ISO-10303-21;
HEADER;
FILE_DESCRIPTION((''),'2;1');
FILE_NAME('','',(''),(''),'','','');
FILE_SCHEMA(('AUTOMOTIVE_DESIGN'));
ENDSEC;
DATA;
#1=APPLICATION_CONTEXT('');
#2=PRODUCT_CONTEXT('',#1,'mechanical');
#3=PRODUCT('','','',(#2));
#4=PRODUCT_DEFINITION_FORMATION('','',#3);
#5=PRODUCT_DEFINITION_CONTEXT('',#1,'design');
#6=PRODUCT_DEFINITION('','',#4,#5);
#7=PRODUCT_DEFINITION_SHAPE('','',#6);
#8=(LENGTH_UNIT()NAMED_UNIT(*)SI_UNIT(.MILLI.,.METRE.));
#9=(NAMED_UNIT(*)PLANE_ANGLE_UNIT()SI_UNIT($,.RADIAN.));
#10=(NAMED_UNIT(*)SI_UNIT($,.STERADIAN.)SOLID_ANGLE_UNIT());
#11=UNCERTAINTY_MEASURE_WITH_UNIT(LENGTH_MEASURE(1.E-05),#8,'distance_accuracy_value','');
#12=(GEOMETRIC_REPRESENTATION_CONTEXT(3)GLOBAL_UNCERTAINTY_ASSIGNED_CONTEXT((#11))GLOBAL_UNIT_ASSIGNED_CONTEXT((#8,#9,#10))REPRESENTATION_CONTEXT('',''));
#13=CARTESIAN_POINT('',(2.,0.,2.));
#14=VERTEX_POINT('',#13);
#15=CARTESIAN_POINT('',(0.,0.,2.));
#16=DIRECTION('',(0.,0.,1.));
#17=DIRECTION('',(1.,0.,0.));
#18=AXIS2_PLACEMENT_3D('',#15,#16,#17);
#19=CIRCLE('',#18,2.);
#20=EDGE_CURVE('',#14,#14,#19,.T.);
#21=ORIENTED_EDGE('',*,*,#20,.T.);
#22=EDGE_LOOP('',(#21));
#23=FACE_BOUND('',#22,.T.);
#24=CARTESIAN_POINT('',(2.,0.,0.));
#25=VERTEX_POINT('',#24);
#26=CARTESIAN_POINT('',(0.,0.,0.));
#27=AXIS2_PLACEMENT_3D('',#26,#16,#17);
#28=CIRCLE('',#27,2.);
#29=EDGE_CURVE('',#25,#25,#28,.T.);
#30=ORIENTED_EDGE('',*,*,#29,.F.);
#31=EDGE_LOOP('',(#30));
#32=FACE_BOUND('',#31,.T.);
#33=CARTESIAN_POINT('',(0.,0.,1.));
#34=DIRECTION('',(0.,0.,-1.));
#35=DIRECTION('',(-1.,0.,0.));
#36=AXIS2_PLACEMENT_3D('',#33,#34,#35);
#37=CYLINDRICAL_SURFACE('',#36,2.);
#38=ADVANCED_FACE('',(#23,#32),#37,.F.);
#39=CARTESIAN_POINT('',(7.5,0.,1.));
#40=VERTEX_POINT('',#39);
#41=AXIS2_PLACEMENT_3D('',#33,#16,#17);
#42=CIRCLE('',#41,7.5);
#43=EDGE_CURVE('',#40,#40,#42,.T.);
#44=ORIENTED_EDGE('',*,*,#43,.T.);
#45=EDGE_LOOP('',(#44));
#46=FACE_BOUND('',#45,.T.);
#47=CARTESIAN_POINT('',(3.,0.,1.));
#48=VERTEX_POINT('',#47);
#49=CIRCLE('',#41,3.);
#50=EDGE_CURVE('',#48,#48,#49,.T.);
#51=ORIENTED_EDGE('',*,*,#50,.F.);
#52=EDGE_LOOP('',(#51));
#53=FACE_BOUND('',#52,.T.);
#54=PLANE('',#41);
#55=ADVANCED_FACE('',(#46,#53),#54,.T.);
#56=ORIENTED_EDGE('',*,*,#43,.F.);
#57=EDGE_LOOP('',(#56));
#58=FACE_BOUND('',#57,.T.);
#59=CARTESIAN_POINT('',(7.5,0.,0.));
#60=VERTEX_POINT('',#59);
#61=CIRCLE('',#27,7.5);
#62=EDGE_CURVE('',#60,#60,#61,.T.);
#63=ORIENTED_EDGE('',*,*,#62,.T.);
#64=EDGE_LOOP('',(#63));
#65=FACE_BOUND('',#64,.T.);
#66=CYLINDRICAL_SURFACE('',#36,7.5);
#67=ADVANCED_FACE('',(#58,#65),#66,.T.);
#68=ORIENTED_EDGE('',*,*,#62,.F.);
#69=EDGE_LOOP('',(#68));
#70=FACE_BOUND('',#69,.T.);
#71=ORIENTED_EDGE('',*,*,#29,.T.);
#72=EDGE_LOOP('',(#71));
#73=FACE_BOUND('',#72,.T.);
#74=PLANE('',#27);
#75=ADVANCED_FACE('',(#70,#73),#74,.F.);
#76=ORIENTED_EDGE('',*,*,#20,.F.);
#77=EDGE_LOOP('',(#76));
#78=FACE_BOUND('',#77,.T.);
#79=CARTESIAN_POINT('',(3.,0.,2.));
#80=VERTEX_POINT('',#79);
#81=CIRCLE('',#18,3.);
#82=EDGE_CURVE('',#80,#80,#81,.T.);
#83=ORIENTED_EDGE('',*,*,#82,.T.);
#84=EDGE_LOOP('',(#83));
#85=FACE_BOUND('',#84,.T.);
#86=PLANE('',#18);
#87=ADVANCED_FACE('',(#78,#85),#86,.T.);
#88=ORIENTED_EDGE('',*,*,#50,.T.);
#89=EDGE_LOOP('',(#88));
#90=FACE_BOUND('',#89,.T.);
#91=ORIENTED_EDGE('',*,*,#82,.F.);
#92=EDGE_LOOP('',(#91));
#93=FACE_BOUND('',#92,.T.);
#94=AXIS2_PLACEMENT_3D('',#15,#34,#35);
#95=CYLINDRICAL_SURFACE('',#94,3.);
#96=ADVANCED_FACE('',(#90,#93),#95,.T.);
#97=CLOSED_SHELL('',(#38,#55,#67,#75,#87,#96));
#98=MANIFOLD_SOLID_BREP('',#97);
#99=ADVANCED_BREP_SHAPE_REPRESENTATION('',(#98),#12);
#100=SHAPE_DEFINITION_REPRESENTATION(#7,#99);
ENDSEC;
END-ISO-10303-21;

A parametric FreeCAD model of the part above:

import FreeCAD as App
import Part
import Sketcher

doc = App.newDocument("Part")
body = doc.addObject("PartDesign::Body", "Body")

sketch1 = body.newObject("Sketcher::SketchObject", "Sketch")
sketch1.AttachmentSupport = (doc.getObject("XY_Plane"), [""])
sketch1.MapMode = "FlatFace"
sketch1.addGeometry(Part.Circle(App.Vector(0, 0, 0), App.Vector(0, 0, 1), 7.5), False)
sketch1.addGeometry(Part.Circle(App.Vector(0, 0, 0), App.Vector(0, 0, 1), 2), False)
sketch1.addConstraint(Sketcher.Constraint("Coincident", 0, 3, -1, 1))
sketch1.addConstraint(Sketcher.Constraint("Coincident", 1, 3, -1, 1))
sketch1.addConstraint(Sketcher.Constraint("Diameter", 0, 15.0))
sketch1.addConstraint(Sketcher.Constraint("Diameter", 1, 4.0))
pad1 = body.newObject("PartDesign::Pad", "Pad")
pad1.Profile = sketch1
pad1.Length = 1

sketch2 = body.newObject("Sketcher::SketchObject", "Sketch001")
sketch2.AttachmentSupport = (doc.getObject("XY_Plane"), [""])
sketch2.MapMode = "FlatFace"
sketch2.AttachmentOffset = App.Placement(App.Vector(0, 0, 1), App.Rotation())
sketch2.addGeometry(Part.Circle(App.Vector(0, 0, 0), App.Vector(0, 0, 1), 3), False)
sketch2.addGeometry(Part.Circle(App.Vector(0, 0, 0), App.Vector(0, 0, 1), 2), False)
sketch2.addConstraint(Sketcher.Constraint("Coincident", 0, 3, -1, 1))
sketch2.addConstraint(Sketcher.Constraint("Coincident", 1, 3, -1, 1))
sketch2.addConstraint(Sketcher.Constraint("Diameter", 0, 6.0))
sketch2.addConstraint(Sketcher.Constraint("Diameter", 1, 4.0))
pad2 = body.newObject("PartDesign::Pad", "Pad001")
pad2.Profile = sketch2
pad2.Length = 1

doc.recompute()
